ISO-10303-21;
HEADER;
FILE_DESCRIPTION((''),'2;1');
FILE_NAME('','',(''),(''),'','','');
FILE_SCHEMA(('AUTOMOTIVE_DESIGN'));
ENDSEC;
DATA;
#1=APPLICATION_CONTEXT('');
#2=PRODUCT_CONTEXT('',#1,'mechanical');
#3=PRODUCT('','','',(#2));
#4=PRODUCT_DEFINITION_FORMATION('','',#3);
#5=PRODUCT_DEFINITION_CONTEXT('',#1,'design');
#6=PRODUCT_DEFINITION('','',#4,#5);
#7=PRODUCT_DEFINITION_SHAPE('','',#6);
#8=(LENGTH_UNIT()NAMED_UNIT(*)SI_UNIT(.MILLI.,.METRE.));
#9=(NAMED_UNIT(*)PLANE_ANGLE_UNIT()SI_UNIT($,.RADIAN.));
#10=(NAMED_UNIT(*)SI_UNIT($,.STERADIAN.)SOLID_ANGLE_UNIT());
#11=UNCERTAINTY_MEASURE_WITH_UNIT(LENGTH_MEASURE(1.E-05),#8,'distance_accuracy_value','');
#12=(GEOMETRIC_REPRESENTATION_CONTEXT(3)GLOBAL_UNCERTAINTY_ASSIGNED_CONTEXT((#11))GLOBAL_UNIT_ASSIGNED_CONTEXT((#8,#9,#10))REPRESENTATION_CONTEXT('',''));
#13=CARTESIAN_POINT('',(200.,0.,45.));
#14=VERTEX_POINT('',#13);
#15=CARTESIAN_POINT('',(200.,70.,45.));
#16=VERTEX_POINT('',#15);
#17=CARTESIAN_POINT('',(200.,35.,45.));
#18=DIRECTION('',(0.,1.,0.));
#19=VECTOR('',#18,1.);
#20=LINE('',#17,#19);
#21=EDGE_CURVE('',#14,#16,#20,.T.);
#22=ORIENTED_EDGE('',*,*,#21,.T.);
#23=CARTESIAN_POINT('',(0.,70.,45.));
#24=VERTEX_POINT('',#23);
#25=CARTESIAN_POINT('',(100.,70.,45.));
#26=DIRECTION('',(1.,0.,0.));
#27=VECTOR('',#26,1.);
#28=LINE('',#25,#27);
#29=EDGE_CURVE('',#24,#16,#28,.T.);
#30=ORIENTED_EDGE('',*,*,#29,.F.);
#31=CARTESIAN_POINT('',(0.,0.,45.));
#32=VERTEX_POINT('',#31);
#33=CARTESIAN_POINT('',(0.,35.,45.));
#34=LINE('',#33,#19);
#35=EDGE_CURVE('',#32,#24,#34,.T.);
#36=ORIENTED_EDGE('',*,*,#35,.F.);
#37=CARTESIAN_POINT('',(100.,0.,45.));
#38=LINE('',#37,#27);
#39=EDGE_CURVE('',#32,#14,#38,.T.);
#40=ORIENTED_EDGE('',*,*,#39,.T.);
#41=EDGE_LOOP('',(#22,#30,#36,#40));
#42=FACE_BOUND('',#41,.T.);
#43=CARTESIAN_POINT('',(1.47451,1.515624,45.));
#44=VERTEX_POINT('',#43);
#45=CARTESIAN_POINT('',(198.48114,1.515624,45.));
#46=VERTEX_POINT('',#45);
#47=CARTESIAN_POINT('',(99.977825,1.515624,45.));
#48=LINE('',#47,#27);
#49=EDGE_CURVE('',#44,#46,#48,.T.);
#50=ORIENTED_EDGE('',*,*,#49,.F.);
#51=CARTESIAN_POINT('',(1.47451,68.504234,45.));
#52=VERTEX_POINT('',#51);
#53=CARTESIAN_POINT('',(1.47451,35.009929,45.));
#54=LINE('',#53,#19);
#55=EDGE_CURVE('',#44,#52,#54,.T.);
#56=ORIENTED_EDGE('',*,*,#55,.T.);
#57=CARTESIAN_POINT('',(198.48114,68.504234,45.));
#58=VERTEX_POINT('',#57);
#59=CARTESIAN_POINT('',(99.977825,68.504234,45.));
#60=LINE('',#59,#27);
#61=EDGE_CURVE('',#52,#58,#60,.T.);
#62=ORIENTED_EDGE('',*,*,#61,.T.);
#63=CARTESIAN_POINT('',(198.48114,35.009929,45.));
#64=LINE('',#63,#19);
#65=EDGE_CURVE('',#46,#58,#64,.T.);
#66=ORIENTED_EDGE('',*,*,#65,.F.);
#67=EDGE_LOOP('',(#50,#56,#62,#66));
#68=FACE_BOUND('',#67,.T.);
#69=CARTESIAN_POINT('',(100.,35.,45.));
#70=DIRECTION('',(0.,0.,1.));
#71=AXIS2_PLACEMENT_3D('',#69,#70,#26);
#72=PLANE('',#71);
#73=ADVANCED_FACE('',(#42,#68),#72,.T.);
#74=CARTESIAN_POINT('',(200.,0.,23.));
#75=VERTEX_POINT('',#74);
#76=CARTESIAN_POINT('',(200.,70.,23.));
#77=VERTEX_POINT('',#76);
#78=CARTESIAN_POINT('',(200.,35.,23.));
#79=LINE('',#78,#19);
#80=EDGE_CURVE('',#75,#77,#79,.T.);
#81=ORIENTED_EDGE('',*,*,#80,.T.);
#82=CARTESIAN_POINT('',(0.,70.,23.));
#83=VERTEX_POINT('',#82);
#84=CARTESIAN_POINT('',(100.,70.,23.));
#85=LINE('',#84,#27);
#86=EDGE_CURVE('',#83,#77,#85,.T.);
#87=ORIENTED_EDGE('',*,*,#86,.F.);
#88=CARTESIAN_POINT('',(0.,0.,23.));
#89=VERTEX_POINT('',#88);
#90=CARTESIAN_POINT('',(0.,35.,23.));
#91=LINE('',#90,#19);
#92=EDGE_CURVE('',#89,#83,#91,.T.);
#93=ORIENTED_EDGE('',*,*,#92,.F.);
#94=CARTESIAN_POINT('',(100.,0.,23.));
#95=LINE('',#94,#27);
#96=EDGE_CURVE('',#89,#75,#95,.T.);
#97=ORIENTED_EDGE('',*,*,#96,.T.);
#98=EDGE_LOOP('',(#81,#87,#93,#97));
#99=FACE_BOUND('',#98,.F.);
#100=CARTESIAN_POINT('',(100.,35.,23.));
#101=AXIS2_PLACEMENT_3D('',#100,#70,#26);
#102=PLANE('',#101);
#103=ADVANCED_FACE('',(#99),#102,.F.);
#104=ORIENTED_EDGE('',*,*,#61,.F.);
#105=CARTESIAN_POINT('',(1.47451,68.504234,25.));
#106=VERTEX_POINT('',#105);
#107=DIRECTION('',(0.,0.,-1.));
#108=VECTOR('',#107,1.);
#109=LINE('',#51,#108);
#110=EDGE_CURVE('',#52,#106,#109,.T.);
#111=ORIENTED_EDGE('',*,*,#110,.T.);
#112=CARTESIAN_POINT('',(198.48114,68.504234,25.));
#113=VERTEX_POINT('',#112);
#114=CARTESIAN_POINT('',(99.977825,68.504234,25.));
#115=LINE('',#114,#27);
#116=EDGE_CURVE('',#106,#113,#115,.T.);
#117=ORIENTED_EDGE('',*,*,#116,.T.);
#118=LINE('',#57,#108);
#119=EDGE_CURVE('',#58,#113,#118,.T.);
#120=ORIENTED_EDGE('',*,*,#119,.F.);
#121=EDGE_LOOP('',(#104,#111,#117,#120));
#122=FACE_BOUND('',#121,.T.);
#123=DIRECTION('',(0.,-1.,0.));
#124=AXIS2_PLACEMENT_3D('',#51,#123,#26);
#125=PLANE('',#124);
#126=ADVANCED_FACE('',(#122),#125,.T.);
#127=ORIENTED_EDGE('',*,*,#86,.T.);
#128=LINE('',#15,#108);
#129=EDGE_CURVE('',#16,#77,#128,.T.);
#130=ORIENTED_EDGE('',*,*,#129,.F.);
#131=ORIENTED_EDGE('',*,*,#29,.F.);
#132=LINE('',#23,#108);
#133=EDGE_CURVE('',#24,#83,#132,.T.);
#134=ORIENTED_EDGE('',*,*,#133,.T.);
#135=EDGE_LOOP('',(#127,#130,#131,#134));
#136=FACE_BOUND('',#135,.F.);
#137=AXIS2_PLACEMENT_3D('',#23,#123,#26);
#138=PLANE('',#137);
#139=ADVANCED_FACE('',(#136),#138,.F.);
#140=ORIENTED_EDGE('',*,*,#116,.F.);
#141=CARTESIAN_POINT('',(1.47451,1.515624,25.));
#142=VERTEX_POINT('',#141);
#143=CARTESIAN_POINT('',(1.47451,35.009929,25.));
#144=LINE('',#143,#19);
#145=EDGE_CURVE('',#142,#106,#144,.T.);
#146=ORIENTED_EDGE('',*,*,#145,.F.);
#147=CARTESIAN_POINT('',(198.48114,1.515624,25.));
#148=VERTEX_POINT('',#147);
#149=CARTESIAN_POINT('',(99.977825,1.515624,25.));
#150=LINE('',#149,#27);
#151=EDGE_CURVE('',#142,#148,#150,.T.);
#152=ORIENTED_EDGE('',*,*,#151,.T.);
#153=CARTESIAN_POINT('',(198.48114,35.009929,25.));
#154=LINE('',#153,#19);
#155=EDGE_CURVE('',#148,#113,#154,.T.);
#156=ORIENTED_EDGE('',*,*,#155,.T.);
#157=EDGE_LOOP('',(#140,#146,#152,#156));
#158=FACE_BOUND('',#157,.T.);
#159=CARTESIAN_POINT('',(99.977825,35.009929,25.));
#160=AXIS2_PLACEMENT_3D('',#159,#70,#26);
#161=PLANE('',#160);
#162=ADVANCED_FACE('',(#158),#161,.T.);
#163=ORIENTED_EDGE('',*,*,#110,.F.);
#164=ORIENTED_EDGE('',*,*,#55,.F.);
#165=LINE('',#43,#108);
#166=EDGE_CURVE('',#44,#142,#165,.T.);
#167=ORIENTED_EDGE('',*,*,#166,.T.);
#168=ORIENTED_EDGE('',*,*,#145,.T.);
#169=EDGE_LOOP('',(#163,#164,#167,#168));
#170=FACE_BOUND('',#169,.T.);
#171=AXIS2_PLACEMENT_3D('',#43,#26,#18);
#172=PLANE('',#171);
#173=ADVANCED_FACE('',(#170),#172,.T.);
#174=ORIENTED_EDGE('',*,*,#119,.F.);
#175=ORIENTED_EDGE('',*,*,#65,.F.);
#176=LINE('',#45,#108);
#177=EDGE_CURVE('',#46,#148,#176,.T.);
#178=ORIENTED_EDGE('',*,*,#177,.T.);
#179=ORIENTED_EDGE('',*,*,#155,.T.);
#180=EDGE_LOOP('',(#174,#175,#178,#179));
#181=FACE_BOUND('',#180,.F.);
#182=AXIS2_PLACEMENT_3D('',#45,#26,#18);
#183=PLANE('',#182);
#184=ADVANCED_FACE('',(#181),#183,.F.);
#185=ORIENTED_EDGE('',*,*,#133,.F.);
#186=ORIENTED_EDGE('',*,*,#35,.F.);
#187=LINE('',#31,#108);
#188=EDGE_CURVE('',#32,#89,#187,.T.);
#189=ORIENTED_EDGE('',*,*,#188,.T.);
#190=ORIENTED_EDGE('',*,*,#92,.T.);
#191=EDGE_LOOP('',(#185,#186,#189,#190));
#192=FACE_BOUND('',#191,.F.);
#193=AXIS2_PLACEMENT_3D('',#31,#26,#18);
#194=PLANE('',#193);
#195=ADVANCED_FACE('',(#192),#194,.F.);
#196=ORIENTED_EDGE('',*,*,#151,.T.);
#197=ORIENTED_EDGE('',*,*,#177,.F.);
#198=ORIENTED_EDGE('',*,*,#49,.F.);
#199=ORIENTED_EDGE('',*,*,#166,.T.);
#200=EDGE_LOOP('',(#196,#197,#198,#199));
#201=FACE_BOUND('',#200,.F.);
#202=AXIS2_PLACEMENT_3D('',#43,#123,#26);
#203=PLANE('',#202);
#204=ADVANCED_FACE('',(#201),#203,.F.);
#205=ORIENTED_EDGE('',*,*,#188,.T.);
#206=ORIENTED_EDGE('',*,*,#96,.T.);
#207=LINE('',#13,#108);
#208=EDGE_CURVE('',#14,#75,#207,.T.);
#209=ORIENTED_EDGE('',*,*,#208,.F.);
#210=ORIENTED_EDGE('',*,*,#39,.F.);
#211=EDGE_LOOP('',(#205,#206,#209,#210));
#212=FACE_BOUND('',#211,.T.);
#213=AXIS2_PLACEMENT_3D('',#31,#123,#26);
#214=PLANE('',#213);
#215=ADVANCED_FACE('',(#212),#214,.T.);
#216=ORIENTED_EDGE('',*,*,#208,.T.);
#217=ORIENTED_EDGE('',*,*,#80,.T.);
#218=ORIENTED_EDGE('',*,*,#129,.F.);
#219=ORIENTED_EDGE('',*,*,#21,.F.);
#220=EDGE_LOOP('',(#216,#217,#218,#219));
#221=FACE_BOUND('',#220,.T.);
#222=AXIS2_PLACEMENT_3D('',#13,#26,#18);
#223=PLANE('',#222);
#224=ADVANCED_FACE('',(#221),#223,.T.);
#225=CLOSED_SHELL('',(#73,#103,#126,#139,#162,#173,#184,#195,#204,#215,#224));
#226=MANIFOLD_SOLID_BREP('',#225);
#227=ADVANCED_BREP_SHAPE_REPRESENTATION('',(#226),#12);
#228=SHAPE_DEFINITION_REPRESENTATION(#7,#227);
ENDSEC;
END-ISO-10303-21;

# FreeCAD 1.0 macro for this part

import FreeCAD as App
import Part
import Sketcher

doc = App.newDocument("Part")
params = doc.addObject("Spreadsheet::Sheet", "Params")
for row, (alias, value) in enumerate([
    ("sketch1_width", "200 mm"),
    ("sketch1_height", "70 mm"),
    ("pad1_length", "22 mm"),
    ("pocket1_length", "20 mm"),
], start=1):
    params.set(f"A{row}", alias)
    params.set(f"B{row}", "=" + value)
    params.setAlias(f"B{row}", alias)

body = doc.addObject("PartDesign::Body", "Body")

# Sketch on XY plane
sketch1 = doc.addObject("Sketcher::SketchObject", "Sketch")
body.addObject(sketch1)
sketch1.AttachmentSupport = (doc.XY_Plane, [""])
sketch1.MapMode = "FlatFace"
sketch1.AttachmentOffset = App.Placement(App.Vector(0, 0, 45), App.Rotation())
sketch1.addGeometry(Part.LineSegment(App.Vector(0, 70, 0), App.Vector(0, 0, 0)), False)
sketch1.addGeometry(Part.LineSegment(App.Vector(0, 0, 0), App.Vector(200, 0, 0)), False)
sketch1.addGeometry(Part.LineSegment(App.Vector(200, 0, 0), App.Vector(200, 70, 0)), False)
sketch1.addGeometry(Part.LineSegment(App.Vector(200, 70, 0), App.Vector(0, 70, 0)), False)
sketch1.addConstraint(Sketcher.Constraint("Coincident", 0, 2, 1, 1))
sketch1.addConstraint(Sketcher.Constraint("Coincident", 1, 2, 2, 1))
sketch1.addConstraint(Sketcher.Constraint("Coincident", 2, 2, 3, 1))
sketch1.addConstraint(Sketcher.Constraint("Coincident", 3, 2, 0, 1))
sketch1.addConstraint(Sketcher.Constraint("Vertical", 0))
sketch1.addConstraint(Sketcher.Constraint("Horizontal", 1))
sketch1.addConstraint(Sketcher.Constraint("Vertical", 2))
sketch1.addConstraint(Sketcher.Constraint("Horizontal", 3))
sketch1.addConstraint(Sketcher.Constraint("Coincident", 0, 2, -1, 1))
sketch1.addConstraint(Sketcher.Constraint("DistanceX", 1, 1, 1, 2, 200.0))
sketch1.addConstraint(Sketcher.Constraint("DistanceY", 0, 2, 0, 1, 70.0))
sketch1.setExpression("Constraints[9]", "Params.sketch1_width")
sketch1.setExpression("Constraints[10]", "Params.sketch1_height")
pad1 = doc.addObject("PartDesign::Pad", "Pad")
body.addObject(pad1)
pad1.Profile = sketch1
pad1.setExpression("Length", "Params.pad1_length")
pad1.Reversed = True

# Sketch on XY plane
sketch2 = doc.addObject("Sketcher::SketchObject", "Sketch001")
body.addObject(sketch2)
sketch2.AttachmentSupport = (doc.XY_Plane, [""])
sketch2.MapMode = "FlatFace"
sketch2.AttachmentOffset = App.Placement(App.Vector(0, 0, 45), App.Rotation())
sketch2.addGeometry(Part.LineSegment(App.Vector(1.47451, 68.504234, 0), App.Vector(1.47451, 1.515624, 0)), False)
sketch2.addGeometry(Part.LineSegment(App.Vector(1.47451, 1.515624, 0), App.Vector(198.48114, 1.515624, 0)), False)
sketch2.addGeometry(Part.LineSegment(App.Vector(198.48114, 1.515624, 0), App.Vector(198.48114, 68.504234, 0)), False)
sketch2.addGeometry(Part.LineSegment(App.Vector(198.48114, 68.504234, 0), App.Vector(1.47451, 68.504234, 0)), False)
sketch2.addConstraint(Sketcher.Constraint("Coincident", 0, 2, 1, 1))
sketch2.addConstraint(Sketcher.Constraint("Coincident", 1, 2, 2, 1))
sketch2.addConstraint(Sketcher.Constraint("Coincident", 2, 2, 3, 1))
sketch2.addConstraint(Sketcher.Constraint("Coincident", 3, 2, 0, 1))
sketch2.addConstraint(Sketcher.Constraint("Vertical", 0))
sketch2.addConstraint(Sketcher.Constraint("Horizontal", 1))
sketch2.addConstraint(Sketcher.Constraint("Vertical", 2))
sketch2.addConstraint(Sketcher.Constraint("Horizontal", 3))
sketch2.addConstraint(Sketcher.Constraint("DistanceX", 1, 1, 1, 2, 197.00663))
sketch2.addConstraint(Sketcher.Constraint("DistanceY", 0, 2, 0, 1, 66.988611))
sketch2.addConstraint(Sketcher.Constraint("DistanceX", -1, 1, 0, 2, 1.47451))
sketch2.addConstraint(Sketcher.Constraint("DistanceY", -1, 1, 0, 2, 1.515624))
pocket1 = doc.addObject("PartDesign::Pocket", "Pocket")
body.addObject(pocket1)
pocket1.Profile = sketch2
pocket1.setExpression("Length", "Params.pocket1_length")

doc.recompute()
